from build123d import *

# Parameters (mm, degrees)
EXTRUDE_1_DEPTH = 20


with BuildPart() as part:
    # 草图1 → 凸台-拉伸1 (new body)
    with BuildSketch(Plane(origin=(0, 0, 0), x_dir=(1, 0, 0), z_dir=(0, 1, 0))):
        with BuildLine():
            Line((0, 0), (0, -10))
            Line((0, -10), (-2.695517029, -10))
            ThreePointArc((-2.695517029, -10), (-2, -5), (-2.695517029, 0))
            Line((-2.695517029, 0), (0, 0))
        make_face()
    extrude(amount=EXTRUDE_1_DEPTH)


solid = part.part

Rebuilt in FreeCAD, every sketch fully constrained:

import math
import FreeCAD as App
import Part
import Sketcher

V = App.Vector
Q = App.Units.Quantity

doc = App.newDocument("Part")
body = doc.addObject("PartDesign::Body", "Body")

# Sketch on XZ plane
sketch1 = body.newObject("Sketcher::SketchObject", "Sketch")
sketch1.AttachmentSupport = (doc.getObject("XZ_Plane"), [""])
sketch1.MapMode = "FlatFace"
sketch1.addGeometry([
    Part.LineSegment(V(0, 10, 0), V(0, 0, 0)),
    Part.LineSegment(V(0, 0, 0), V(-2.7, 0, 0)),
    Part.ArcOfCircle(Part.Circle(V(-20.3, 5, 0), V(0, 0, 1), 18.3), math.radians(-16), math.radians(16)),
    Part.LineSegment(V(-2.7, 10, 0), V(0, 10, 0)),
], False)
sketch1.addConstraint([
    Sketcher.Constraint("Coincident", 0, 2, 1, 1),
    Sketcher.Constraint("Coincident", 1, 2, 2, 1),
    Sketcher.Constraint("Coincident", 2, 2, 3, 1),
    Sketcher.Constraint("Coincident", 3, 2, 0, 1),
    Sketcher.Constraint("Vertical", 0),
    Sketcher.Constraint("Horizontal", 1),
    Sketcher.Constraint("Horizontal", 3),
    Sketcher.Constraint("Coincident", 0, 2, -1, 1),
    Sketcher.Constraint("Vertical", 1, 2, 2, 2),
    Sketcher.Constraint("DistanceY", 0, 2, 0, 1, Q("10 mm")),
    Sketcher.Constraint("Radius", 2, Q("18.32 mm")),
    Sketcher.Constraint("DistanceX", 2, 3, -1, 1, Q("20.32 mm")),
])
pad1 = body.newObject("PartDesign::Pad", "Pad")
pad1.Profile = sketch1
pad1.Length = 20
pad1.Reversed = True

doc.recompute()
